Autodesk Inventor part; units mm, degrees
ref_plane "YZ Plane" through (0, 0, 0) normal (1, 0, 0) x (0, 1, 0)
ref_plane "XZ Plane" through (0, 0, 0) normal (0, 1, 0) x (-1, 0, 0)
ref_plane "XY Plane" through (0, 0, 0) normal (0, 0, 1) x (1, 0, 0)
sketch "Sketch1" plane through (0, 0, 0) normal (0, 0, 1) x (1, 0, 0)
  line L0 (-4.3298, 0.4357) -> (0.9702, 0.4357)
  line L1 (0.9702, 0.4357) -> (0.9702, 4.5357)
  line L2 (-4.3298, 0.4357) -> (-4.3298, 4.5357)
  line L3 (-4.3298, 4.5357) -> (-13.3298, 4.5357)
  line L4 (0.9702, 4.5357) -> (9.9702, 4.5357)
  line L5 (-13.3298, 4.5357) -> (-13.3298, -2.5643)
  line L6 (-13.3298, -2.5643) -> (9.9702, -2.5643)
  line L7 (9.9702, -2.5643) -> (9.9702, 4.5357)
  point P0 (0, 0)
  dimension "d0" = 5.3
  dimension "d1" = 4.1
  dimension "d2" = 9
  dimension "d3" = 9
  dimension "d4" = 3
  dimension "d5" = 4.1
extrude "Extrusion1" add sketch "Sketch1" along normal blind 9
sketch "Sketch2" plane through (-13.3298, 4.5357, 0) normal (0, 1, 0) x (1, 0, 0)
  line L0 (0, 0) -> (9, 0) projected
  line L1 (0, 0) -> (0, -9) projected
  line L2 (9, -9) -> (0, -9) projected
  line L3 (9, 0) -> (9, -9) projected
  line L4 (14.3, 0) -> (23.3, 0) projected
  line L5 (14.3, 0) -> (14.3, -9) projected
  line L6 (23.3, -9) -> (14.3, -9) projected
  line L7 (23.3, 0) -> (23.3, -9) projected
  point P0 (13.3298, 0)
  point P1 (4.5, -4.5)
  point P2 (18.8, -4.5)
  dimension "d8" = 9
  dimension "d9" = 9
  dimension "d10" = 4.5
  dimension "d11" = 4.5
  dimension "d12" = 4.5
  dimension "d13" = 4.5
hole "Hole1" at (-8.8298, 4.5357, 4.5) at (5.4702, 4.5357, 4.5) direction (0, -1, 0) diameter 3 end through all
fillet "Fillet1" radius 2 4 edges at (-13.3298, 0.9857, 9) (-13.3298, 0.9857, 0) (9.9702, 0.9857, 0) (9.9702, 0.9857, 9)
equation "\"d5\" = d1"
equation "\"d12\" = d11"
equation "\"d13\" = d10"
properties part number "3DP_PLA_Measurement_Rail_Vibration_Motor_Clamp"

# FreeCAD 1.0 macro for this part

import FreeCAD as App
import Part
import Sketcher


def edges_at(feature, points):
    """Names of the edges that pass closest to the given points."""
    edges = feature.Shape.Edges
    near = lambda p: min(range(len(edges)), key=lambda i: edges[i].distToShape(Part.Vertex(*p))[0])
    return sorted({f"Edge{near(p) + 1}" for p in points})


def add_polygon(sketch, points):
    """Adds a closed chain of lines whose ends are joined by coincident constraints."""
    first, n = sketch.GeometryCount, len(points)
    for a, b in zip(points, points[1:] + points[:1]):
        sketch.addGeometry(Part.LineSegment(App.Vector(*a, 0), App.Vector(*b, 0)), False)
    for i in range(n):
        sketch.addConstraint(Sketcher.Constraint("Coincident", first + i, 2, first + (i + 1) % n, 1))

doc = App.newDocument("Part")
body = doc.addObject("PartDesign::Body", "Body")

# Sketch on XY plane
sketch1 = body.newObject("Sketcher::SketchObject", "Sketch")
sketch1.AttachmentSupport = (doc.getObject("XY_Plane"), [""])
sketch1.MapMode = "FlatFace"
add_polygon(sketch1, [(1, 0.4), (-4.3, 0.4), (-4.3, 4.5), (-13.3, 4.5), (-13.3, -2.6), (10, -2.6), (10, 4.5), (1, 4.5)])  # lines 0-7
sketch1.addConstraint([
    Sketcher.Constraint("Horizontal", 0),
    Sketcher.Constraint("Vertical", 1),
    Sketcher.Constraint("Horizontal", 2),
    Sketcher.Constraint("Vertical", 3),
    Sketcher.Constraint("Horizontal", 4),
    Sketcher.Constraint("Vertical", 5),
    Sketcher.Constraint("Horizontal", 6),
    Sketcher.Constraint("Vertical", 7),
    Sketcher.Constraint("Horizontal", 2, 2, 5, 2),
    Sketcher.Constraint("Equal", 2, 6),
    Sketcher.Constraint("DistanceX", 2, 2, 2, 1, 9.0),
    Sketcher.Constraint("DistanceX", 0, 2, 0, 1, 5.3),
    Sketcher.Constraint("DistanceY", 1, 1, 1, 2, 4.1),
    Sketcher.Constraint("DistanceY", 3, 2, 0, 2, 3.0),
    Sketcher.Constraint("DistanceX", 0, 2, -1, 1, 4.3298),
    Sketcher.Constraint("DistanceY", -1, 1, 0, 2, 0.4357),
])
pad1 = body.newObject("PartDesign::Pad", "Pad")
pad1.Profile = sketch1
pad1.Length = 9

# Sketch on XZ plane
sketch2 = body.newObject("Sketcher::SketchObject", "Sketch001")
sketch2.AttachmentSupport = (doc.getObject("XZ_Plane"), [""])
sketch2.MapMode = "FlatFace"
sketch2.AttachmentOffset = App.Placement(App.Vector(0, 0, -4.5357), App.Rotation())
sketch2.addGeometry([
    Part.Circle(App.Vector(-8.8, 4.5, 0), App.Vector(0, 0, 1), 1.5),
    Part.Circle(App.Vector(5.5, 4.5, 0), App.Vector(0, 0, 1), 1.5),
], False)
sketch2.addConstraint([
    Sketcher.Constraint("Equal", 0, 1),
    Sketcher.Constraint("Horizontal", 0, 3, 1, 3),
    Sketcher.Constraint("Diameter", 0, 3.0),
    Sketcher.Constraint("DistanceY", -1, 1, 0, 3, 4.5),
    Sketcher.Constraint("DistanceX", 0, 3, 1, 3, 14.3),
    Sketcher.Constraint("DistanceX", 0, 3, -1, 1, 8.8298),
])
doc.recompute()
hole = body.newObject("PartDesign::Hole", "Hole")
hole.Profile = sketch2
hole.ThreadType = "None"
hole.Diameter = 3
hole.DepthType = "ThroughAll"
hole.Reversed = True
doc.recompute()

fillet = body.newObject("PartDesign::Fillet", "Fillet")
fillet.Base = (hole, edges_at(hole, [
    (-13.33, 0.986, 9),
    (-13.33, 0.986, 0),
    (9.97, 0.986, 0),
    (9.97, 0.986, 9),
]))
fillet.Radius = 2

doc.recompute()
